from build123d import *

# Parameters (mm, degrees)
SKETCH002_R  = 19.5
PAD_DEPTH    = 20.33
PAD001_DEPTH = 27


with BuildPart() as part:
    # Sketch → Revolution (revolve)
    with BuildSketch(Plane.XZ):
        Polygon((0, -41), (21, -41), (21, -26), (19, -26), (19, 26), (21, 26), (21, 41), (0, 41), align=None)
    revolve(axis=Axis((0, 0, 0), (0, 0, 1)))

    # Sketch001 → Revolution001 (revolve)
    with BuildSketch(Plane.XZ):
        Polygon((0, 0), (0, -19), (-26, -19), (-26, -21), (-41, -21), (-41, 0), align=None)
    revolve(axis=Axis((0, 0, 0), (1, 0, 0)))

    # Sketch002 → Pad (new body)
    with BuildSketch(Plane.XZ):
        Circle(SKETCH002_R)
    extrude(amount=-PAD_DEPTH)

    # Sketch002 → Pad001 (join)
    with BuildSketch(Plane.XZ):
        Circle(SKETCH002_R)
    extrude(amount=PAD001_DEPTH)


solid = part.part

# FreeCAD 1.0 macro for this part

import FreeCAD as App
import Part
import Sketcher
from FreeCAD import Vector


def add_polygon(sketch, points):
    """Adds a closed chain of lines whose ends are joined by coincident constraints."""
    first, n = sketch.GeometryCount, len(points)
    for a, b in zip(points, points[1:] + points[:1]):
        sketch.addGeometry(Part.LineSegment(App.Vector(*a, 0), App.Vector(*b, 0)), False)
    for i in range(n):
        sketch.addConstraint(Sketcher.Constraint("Coincident", first + i, 2, first + (i + 1) % n, 1))

doc = App.newDocument("Part")
body = doc.addObject("PartDesign::Body", "Body")

# Sketch on XZ plane
sketch1 = body.newObject("Sketcher::SketchObject", "Sketch")
sketch1.AttachmentSupport = (doc.getObject("XZ_Plane"), [""])
sketch1.MapMode = "FlatFace"
add_polygon(sketch1, [(0, -41), (21, -41), (21, -26), (19, -26), (19, 26), (21, 26), (21, 41), (0, 41)])  # lines 0-7
sketch1.addConstraint(Sketcher.Constraint("Horizontal", 0))
sketch1.addConstraint(Sketcher.Constraint("Vertical", 1))
sketch1.addConstraint(Sketcher.Constraint("Horizontal", 2))
sketch1.addConstraint(Sketcher.Constraint("Vertical", 3))
sketch1.addConstraint(Sketcher.Constraint("Horizontal", 4))
sketch1.addConstraint(Sketcher.Constraint("Vertical", 5))
sketch1.addConstraint(Sketcher.Constraint("Horizontal", 6))
sketch1.addConstraint(Sketcher.Constraint("Vertical", 7))
sketch1.addConstraint(Sketcher.Constraint("Symmetric", 6, 2, 7, 2, -1, 1))
sketch1.addConstraint(Sketcher.Constraint("Symmetric", 1, 2, 4, 2, -1))
sketch1.addConstraint(Sketcher.Constraint("DistanceX", 0, 1, 0, 2, 21.0))
sketch1.addConstraint(Sketcher.Constraint("DistanceX", 2, 2, 2, 1, 2.0))
sketch1.addConstraint(Sketcher.Constraint("DistanceY", 1, 1, 1, 2, 15.0))
sketch1.addConstraint(Sketcher.Constraint("DistanceY", 3, 1, 3, 2, 52.0))
revolution = body.newObject("PartDesign::Revolution", "Revolution")
revolution.Profile = sketch1
revolution.ReferenceAxis = (sketch1, ["V_Axis"])
revolution.Angle = 360

# Sketch on XZ plane
sketch2 = body.newObject("Sketcher::SketchObject", "Sketch001")
sketch2.AttachmentSupport = (doc.getObject("XZ_Plane"), [""])
sketch2.MapMode = "FlatFace"
add_polygon(sketch2, [(0, -19), (0, 0), (-41, 0), (-41, -21), (-26, -21), (-26, -19)])  # lines 0-5
sketch2.addConstraint(Sketcher.Constraint("Vertical", 0))
sketch2.addConstraint(Sketcher.Constraint("Horizontal", 1))
sketch2.addConstraint(Sketcher.Constraint("Vertical", 2))
sketch2.addConstraint(Sketcher.Constraint("Horizontal", 3))
sketch2.addConstraint(Sketcher.Constraint("Vertical", 4))
sketch2.addConstraint(Sketcher.Constraint("Horizontal", 5))
sketch2.addConstraint(Sketcher.Constraint("Coincident", 0, 2, -1, 1))
sketch2.addConstraint(Sketcher.Constraint("DistanceX", 1, 2, 1, 1, 41.0))
sketch2.addConstraint(Sketcher.Constraint("DistanceX", 3, 1, 3, 2, 15.0))
sketch2.addConstraint(Sketcher.Constraint("DistanceY", 0, 1, 0, 2, 19.0))
sketch2.addConstraint(Sketcher.Constraint("DistanceY", 2, 2, 2, 1, 21.0))
revolution2 = body.newObject("PartDesign::Revolution", "Revolution001")
revolution2.Profile = sketch2
revolution2.ReferenceAxis = (sketch2, ["H_Axis"])
revolution2.Angle = 360

# Sketch on XZ plane
sketch3 = body.newObject("Sketcher::SketchObject", "Sketch002")
sketch3.AttachmentSupport = (doc.getObject("XZ_Plane"), [""])
sketch3.MapMode = "FlatFace"
sketch3.addGeometry(Part.Circle(Vector(0, 0, 0), Vector(0, 0, 1), 20), False)
sketch3.addConstraint(Sketcher.Constraint("Coincident", 0, 3, -1, 1))
sketch3.addConstraint(Sketcher.Constraint("Diameter", 0, 39.0))
pad1 = body.newObject("PartDesign::Pad", "Pad")
pad1.Profile = sketch3
pad1.Length = 20.33
pad1.Reversed = True

# Sketch on XZ plane
sketch4 = body.newObject("Sketcher::SketchObject", "Sketch003")
sketch4.AttachmentSupport = (doc.getObject("XZ_Plane"), [""])
sketch4.MapMode = "FlatFace"
sketch4.addGeometry(Part.Circle(Vector(0, 0, 0), Vector(0, 0, 1), 20), False)
sketch4.addConstraint(Sketcher.Constraint("Coincident", 0, 3, -1, 1))
sketch4.addConstraint(Sketcher.Constraint("Diameter", 0, 39.0))
pad2 = body.newObject("PartDesign::Pad", "Pad001")
pad2.Profile = sketch4
pad2.Length = 27

doc.recompute()
